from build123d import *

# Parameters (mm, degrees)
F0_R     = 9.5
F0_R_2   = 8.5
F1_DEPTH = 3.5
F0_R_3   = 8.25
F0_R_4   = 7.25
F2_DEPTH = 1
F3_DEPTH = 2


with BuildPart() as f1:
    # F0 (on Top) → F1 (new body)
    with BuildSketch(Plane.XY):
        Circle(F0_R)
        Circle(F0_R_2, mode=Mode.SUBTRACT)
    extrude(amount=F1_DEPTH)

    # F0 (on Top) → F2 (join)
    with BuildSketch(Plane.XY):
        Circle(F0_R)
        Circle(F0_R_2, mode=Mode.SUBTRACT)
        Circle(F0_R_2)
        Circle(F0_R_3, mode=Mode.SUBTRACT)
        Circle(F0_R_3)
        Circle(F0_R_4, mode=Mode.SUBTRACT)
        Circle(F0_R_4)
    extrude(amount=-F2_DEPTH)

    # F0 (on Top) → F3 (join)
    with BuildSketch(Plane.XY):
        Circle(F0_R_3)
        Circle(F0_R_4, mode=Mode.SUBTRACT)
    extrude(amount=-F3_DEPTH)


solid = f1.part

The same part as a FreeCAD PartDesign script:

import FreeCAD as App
import Part
import Sketcher
Q = App.Units.Quantity

doc = App.newDocument("Part")
body = doc.addObject("PartDesign::Body", "Body")

# Sketch on XY plane
sketch1 = doc.addObject("Sketcher::SketchObject", "Sketch")
body.addObject(sketch1)
sketch1.AttachmentSupport = (doc.XY_Plane, [""])
sketch1.MapMode = "FlatFace"
sketch1.addGeometry(Part.Circle(App.Vector(0, 0, 0), App.Vector(0, 0, 1), 10), False)
sketch1.addGeometry(Part.Circle(App.Vector(0, 0, 0), App.Vector(0, 0, 1), 8), False)
sketch1.addConstraint(Sketcher.Constraint("Coincident", 0, 3, -1, 1))
sketch1.addConstraint(Sketcher.Constraint("Coincident", 1, 3, -1, 1))
sketch1.addConstraint(Sketcher.Constraint("Diameter", 0, Q("19 mm")))
sketch1.addConstraint(Sketcher.Constraint("Diameter", 1, Q("17 mm")))
pad1 = doc.addObject("PartDesign::Pad", "Pad")
body.addObject(pad1)
pad1.Profile = sketch1
pad1.Length = 3.5

# Sketch on XY plane
sketch2 = doc.addObject("Sketcher::SketchObject", "Sketch001")
body.addObject(sketch2)
sketch2.AttachmentSupport = (doc.XY_Plane, [""])
sketch2.MapMode = "FlatFace"
sketch2.addGeometry(Part.Circle(App.Vector(0, 0, 0), App.Vector(0, 0, 1), 10), False)
sketch2.addConstraint(Sketcher.Constraint("Coincident", 0, 3, -1, 1))
sketch2.addConstraint(Sketcher.Constraint("Diameter", 0, Q("19 mm")))
pad2 = doc.addObject("PartDesign::Pad", "Pad001")
body.addObject(pad2)
pad2.Profile = sketch2
pad2.Length = 1
pad2.Reversed = True

# Sketch on XY plane
sketch3 = doc.addObject("Sketcher::SketchObject", "Sketch002")
body.addObject(sketch3)
sketch3.AttachmentSupport = (doc.XY_Plane, [""])
sketch3.MapMode = "FlatFace"
sketch3.addGeometry(Part.Circle(App.Vector(0, 0, 0), App.Vector(0, 0, 1), 8), False)
sketch3.addGeometry(Part.Circle(App.Vector(0, 0, 0), App.Vector(0, 0, 1), 7), False)
sketch3.addConstraint(Sketcher.Constraint("Coincident", 0, 3, -1, 1))
sketch3.addConstraint(Sketcher.Constraint("Coincident", 1, 3, -1, 1))
sketch3.addConstraint(Sketcher.Constraint("Diameter", 0, Q("16.5 mm")))
sketch3.addConstraint(Sketcher.Constraint("Diameter", 1, Q("14.5 mm")))
pad3 = doc.addObject("PartDesign::Pad", "Pad002")
body.addObject(pad3)
pad3.Profile = sketch3
pad3.Length = 2
pad3.Reversed = True

doc.recompute()
